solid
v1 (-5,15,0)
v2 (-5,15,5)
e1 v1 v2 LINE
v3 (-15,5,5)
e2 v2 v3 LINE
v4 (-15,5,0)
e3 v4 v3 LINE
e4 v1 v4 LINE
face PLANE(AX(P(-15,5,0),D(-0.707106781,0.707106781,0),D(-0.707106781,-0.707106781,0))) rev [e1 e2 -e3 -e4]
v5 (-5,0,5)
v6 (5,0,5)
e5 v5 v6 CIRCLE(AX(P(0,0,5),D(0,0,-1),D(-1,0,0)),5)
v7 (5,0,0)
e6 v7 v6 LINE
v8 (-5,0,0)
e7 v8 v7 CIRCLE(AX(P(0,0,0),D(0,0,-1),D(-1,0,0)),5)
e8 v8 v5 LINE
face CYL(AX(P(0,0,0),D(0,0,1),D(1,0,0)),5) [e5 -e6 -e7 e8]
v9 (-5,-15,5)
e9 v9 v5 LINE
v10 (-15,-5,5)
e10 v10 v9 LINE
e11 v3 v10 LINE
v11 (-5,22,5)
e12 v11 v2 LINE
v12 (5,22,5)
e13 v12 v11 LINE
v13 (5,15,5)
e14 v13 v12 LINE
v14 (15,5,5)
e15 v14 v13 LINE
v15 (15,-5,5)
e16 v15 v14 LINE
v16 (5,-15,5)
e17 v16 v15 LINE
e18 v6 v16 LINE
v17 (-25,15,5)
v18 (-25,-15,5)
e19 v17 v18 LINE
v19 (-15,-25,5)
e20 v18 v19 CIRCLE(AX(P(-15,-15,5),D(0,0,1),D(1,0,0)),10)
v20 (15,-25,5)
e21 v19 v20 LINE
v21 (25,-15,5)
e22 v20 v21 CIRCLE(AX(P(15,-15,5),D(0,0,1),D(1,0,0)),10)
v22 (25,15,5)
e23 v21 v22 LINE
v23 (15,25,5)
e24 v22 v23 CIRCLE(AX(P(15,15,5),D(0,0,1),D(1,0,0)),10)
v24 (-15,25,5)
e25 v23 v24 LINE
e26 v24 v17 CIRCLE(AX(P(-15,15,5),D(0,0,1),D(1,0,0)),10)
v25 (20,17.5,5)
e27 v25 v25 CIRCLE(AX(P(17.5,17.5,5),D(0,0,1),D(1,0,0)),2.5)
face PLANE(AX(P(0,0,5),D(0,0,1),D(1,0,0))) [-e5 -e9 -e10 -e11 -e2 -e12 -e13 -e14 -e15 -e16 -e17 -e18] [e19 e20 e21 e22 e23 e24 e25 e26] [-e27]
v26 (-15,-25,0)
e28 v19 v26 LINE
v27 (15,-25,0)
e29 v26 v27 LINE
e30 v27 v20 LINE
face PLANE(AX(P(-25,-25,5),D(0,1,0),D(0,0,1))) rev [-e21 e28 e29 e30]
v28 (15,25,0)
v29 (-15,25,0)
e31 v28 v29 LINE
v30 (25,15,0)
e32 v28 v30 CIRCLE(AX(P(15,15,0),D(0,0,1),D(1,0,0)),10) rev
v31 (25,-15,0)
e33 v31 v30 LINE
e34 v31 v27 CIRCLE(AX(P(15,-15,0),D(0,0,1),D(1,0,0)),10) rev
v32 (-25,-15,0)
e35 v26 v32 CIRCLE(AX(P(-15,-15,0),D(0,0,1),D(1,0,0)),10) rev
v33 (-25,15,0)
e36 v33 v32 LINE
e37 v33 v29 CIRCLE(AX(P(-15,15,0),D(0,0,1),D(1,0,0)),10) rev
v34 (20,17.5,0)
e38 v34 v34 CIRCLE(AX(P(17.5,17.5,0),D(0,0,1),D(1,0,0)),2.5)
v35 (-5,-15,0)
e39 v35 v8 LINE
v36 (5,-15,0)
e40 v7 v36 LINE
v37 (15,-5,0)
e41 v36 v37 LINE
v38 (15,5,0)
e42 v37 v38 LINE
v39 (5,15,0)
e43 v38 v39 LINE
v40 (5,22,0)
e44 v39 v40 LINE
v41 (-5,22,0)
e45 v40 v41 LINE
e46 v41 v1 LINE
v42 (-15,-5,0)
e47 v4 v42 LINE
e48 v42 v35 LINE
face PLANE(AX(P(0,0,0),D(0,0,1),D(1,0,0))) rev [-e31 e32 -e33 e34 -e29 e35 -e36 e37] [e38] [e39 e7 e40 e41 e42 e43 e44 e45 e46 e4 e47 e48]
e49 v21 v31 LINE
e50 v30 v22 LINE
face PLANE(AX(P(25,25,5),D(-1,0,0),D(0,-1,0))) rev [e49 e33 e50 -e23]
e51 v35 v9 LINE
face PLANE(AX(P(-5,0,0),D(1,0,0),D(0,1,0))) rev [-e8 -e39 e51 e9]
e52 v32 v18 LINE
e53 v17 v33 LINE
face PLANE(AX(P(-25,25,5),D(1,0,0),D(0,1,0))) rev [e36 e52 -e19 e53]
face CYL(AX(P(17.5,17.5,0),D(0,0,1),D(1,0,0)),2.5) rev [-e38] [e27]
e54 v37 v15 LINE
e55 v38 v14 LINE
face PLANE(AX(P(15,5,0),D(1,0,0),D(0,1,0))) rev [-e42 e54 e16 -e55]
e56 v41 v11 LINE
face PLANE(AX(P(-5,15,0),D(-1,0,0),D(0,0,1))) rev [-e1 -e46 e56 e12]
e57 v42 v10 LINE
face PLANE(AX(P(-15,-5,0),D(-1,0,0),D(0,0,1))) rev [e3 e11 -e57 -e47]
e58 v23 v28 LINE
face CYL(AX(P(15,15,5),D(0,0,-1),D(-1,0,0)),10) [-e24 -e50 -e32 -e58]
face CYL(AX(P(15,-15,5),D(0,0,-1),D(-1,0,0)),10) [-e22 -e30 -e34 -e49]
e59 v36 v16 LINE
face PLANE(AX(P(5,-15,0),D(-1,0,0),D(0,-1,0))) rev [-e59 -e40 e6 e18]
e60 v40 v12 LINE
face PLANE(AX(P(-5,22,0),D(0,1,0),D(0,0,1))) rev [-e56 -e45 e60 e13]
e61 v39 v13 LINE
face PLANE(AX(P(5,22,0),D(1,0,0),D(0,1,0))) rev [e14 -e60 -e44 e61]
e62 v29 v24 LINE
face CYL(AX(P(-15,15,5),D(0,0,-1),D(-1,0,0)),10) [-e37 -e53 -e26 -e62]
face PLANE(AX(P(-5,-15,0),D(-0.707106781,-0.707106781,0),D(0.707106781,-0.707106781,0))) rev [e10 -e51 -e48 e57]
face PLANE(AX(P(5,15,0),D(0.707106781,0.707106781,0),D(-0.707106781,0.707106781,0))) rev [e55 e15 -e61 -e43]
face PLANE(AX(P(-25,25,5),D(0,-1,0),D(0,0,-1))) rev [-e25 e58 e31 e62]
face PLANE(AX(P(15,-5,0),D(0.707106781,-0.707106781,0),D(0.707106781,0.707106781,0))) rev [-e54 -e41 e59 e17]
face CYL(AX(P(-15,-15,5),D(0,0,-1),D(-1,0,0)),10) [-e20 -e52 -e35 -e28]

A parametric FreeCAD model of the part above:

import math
import FreeCAD as App
import Part
import Sketcher
from FreeCAD import Vector
Q = App.Units.Quantity


def edges_at(feature, points):
    """Names of the edges that pass closest to the given points."""
    edges = feature.Shape.Edges
    near = lambda p: min(range(len(edges)), key=lambda i: edges[i].distToShape(Part.Vertex(*p))[0])
    return sorted({f"Edge{near(p) + 1}" for p in points})


def add_polygon(sketch, points):
    """Adds a closed chain of lines whose ends are joined by coincident constraints."""
    first, n = sketch.GeometryCount, len(points)
    for a, b in zip(points, points[1:] + points[:1]):
        sketch.addGeometry(Part.LineSegment(App.Vector(*a, 0), App.Vector(*b, 0)), False)
    for i in range(n):
        sketch.addConstraint(Sketcher.Constraint("Coincident", first + i, 2, first + (i + 1) % n, 1))

doc = App.newDocument("Part")
body = doc.addObject("PartDesign::Body", "Body")

# Sketch on XY plane
sketch1 = body.newObject("Sketcher::SketchObject", "Sketch")
sketch1.AttachmentSupport = (doc.getObject("XY_Plane"), [""])
sketch1.MapMode = "FlatFace"
add_polygon(sketch1, [(-25, 25), (-25, -25), (25, -25), (25, 25)])  # lines 0-3
sketch1.addConstraint([
    Sketcher.Constraint("Vertical", 0),
    Sketcher.Constraint("Horizontal", 1),
    Sketcher.Constraint("Vertical", 2),
    Sketcher.Constraint("Horizontal", 3),
    Sketcher.Constraint("Symmetric", 0, 2, 2, 2, -1, 1),
    Sketcher.Constraint("Equal", 3, 0),
    Sketcher.Constraint("DistanceX", 1, 1, 1, 2, Q("50 mm")),
])
pad1 = body.newObject("PartDesign::Pad", "Pad")
pad1.Profile = sketch1
pad1.Length = 5
doc.recompute()

fillet = body.newObject("PartDesign::Fillet", "Fillet")
fillet.Base = (pad1, edges_at(pad1, [
    (-25, 25, 2.5),
    (25, 25, 2.5),
    (25, -25, 2.5),
    (-25, -25, 2.5),
]))
fillet.Radius = 10

# Sketch on XY plane
sketch2 = body.newObject("Sketcher::SketchObject", "Sketch001")
sketch2.AttachmentSupport = (doc.getObject("XY_Plane"), [""])
sketch2.MapMode = "FlatFace"
sketch2.AttachmentOffset = App.Placement(Vector(0, 0, 5), App.Rotation())
sketch2.addGeometry([
    Part.Circle(Vector(17.5, 17.5, 0), Vector(0, 0, 1), 2.5),  # 0
    Part.LineSegment(Vector(-5, -15, 0), Vector(-5, 0, 0)),  # 1
    Part.ArcOfCircle(Part.Circle(Vector(0, 0, 0), Vector(0, 0, 1), 5), math.radians(0), math.radians(180)),  # 2
    Part.LineSegment(Vector(5, 0, 0), Vector(5, -15, 0)),  # 3
    Part.LineSegment(Vector(5, -15, 0), Vector(15, -5, 0)),  # 4
    Part.LineSegment(Vector(15, -5, 0), Vector(15, 5, 0)),  # 5
    Part.LineSegment(Vector(15, 5, 0), Vector(5, 15, 0)),  # 6
    Part.LineSegment(Vector(5, 15, 0), Vector(5, 22, 0)),  # 7
    Part.LineSegment(Vector(5, 22, 0), Vector(-5, 22, 0)),  # 8
    Part.LineSegment(Vector(-5, 22, 0), Vector(-5, 15, 0)),  # 9
    Part.LineSegment(Vector(-5, 15, 0), Vector(-15, 5, 0)),  # 10
    Part.LineSegment(Vector(-15, 5, 0), Vector(-15, -5, 0)),  # 11
    Part.LineSegment(Vector(-15, -5, 0), Vector(-5, -15, 0)),  # 12
], False)
sketch2.addConstraint([
    Sketcher.Constraint("Tangent", 1, 2, 2, 2),
    Sketcher.Constraint("Tangent", 2, 1, 3, 1),
    Sketcher.Constraint("Coincident", 3, 2, 4, 1),
    Sketcher.Constraint("Coincident", 4, 2, 5, 1),
    Sketcher.Constraint("Coincident", 5, 2, 6, 1),
    Sketcher.Constraint("Coincident", 6, 2, 7, 1),
    Sketcher.Constraint("Coincident", 7, 2, 8, 1),
    Sketcher.Constraint("Coincident", 8, 2, 9, 1),
    Sketcher.Constraint("Coincident", 9, 2, 10, 1),
    Sketcher.Constraint("Coincident", 10, 2, 11, 1),
    Sketcher.Constraint("Coincident", 11, 2, 12, 1),
    Sketcher.Constraint("Coincident", 12, 2, 1, 1),
    Sketcher.Constraint("Vertical", 1),
    Sketcher.Constraint("Vertical", 3),
    Sketcher.Constraint("Vertical", 5),
    Sketcher.Constraint("Vertical", 7),
    Sketcher.Constraint("Horizontal", 8),
    Sketcher.Constraint("Vertical", 9),
    Sketcher.Constraint("Vertical", 11),
    Sketcher.Constraint("Coincident", 2, 3, -1, 1),
    Sketcher.Constraint("Symmetric", 3, 2, 9, 2, -1, 1),
    Sketcher.Constraint("Symmetric", 4, 2, 10, 2, -1, 1),
    Sketcher.Constraint("Symmetric", 6, 2, 12, 2, -1, 1),
    Sketcher.Constraint("Perpendicular", 4, 6),
    Sketcher.Constraint("Perpendicular", 10, 12),
    Sketcher.Constraint("Horizontal", 6, 2, 9, 2),
    Sketcher.Constraint("Horizontal", 5, 2, 10, 2),
    Sketcher.Constraint("Equal", 8, 5),
    Sketcher.Constraint("Diameter", 0, Q("5 mm")),
    Sketcher.Constraint("Radius", 2, Q("5 mm")),
    Sketcher.Constraint("DistanceY", 1, 1, 1, 2, Q("15 mm")),
    Sketcher.Constraint("DistanceY", 7, 1, 7, 2, Q("7 mm")),
    Sketcher.Constraint("DistanceX", -1, 1, 0, 3, Q("17.5 mm")),
    Sketcher.Constraint("DistanceY", -1, 1, 0, 3, Q("17.5 mm")),
])
pocket1 = body.newObject("PartDesign::Pocket", "Pocket")
pocket1.Profile = sketch2
pocket1.Type = "ThroughAll"

doc.recompute()
